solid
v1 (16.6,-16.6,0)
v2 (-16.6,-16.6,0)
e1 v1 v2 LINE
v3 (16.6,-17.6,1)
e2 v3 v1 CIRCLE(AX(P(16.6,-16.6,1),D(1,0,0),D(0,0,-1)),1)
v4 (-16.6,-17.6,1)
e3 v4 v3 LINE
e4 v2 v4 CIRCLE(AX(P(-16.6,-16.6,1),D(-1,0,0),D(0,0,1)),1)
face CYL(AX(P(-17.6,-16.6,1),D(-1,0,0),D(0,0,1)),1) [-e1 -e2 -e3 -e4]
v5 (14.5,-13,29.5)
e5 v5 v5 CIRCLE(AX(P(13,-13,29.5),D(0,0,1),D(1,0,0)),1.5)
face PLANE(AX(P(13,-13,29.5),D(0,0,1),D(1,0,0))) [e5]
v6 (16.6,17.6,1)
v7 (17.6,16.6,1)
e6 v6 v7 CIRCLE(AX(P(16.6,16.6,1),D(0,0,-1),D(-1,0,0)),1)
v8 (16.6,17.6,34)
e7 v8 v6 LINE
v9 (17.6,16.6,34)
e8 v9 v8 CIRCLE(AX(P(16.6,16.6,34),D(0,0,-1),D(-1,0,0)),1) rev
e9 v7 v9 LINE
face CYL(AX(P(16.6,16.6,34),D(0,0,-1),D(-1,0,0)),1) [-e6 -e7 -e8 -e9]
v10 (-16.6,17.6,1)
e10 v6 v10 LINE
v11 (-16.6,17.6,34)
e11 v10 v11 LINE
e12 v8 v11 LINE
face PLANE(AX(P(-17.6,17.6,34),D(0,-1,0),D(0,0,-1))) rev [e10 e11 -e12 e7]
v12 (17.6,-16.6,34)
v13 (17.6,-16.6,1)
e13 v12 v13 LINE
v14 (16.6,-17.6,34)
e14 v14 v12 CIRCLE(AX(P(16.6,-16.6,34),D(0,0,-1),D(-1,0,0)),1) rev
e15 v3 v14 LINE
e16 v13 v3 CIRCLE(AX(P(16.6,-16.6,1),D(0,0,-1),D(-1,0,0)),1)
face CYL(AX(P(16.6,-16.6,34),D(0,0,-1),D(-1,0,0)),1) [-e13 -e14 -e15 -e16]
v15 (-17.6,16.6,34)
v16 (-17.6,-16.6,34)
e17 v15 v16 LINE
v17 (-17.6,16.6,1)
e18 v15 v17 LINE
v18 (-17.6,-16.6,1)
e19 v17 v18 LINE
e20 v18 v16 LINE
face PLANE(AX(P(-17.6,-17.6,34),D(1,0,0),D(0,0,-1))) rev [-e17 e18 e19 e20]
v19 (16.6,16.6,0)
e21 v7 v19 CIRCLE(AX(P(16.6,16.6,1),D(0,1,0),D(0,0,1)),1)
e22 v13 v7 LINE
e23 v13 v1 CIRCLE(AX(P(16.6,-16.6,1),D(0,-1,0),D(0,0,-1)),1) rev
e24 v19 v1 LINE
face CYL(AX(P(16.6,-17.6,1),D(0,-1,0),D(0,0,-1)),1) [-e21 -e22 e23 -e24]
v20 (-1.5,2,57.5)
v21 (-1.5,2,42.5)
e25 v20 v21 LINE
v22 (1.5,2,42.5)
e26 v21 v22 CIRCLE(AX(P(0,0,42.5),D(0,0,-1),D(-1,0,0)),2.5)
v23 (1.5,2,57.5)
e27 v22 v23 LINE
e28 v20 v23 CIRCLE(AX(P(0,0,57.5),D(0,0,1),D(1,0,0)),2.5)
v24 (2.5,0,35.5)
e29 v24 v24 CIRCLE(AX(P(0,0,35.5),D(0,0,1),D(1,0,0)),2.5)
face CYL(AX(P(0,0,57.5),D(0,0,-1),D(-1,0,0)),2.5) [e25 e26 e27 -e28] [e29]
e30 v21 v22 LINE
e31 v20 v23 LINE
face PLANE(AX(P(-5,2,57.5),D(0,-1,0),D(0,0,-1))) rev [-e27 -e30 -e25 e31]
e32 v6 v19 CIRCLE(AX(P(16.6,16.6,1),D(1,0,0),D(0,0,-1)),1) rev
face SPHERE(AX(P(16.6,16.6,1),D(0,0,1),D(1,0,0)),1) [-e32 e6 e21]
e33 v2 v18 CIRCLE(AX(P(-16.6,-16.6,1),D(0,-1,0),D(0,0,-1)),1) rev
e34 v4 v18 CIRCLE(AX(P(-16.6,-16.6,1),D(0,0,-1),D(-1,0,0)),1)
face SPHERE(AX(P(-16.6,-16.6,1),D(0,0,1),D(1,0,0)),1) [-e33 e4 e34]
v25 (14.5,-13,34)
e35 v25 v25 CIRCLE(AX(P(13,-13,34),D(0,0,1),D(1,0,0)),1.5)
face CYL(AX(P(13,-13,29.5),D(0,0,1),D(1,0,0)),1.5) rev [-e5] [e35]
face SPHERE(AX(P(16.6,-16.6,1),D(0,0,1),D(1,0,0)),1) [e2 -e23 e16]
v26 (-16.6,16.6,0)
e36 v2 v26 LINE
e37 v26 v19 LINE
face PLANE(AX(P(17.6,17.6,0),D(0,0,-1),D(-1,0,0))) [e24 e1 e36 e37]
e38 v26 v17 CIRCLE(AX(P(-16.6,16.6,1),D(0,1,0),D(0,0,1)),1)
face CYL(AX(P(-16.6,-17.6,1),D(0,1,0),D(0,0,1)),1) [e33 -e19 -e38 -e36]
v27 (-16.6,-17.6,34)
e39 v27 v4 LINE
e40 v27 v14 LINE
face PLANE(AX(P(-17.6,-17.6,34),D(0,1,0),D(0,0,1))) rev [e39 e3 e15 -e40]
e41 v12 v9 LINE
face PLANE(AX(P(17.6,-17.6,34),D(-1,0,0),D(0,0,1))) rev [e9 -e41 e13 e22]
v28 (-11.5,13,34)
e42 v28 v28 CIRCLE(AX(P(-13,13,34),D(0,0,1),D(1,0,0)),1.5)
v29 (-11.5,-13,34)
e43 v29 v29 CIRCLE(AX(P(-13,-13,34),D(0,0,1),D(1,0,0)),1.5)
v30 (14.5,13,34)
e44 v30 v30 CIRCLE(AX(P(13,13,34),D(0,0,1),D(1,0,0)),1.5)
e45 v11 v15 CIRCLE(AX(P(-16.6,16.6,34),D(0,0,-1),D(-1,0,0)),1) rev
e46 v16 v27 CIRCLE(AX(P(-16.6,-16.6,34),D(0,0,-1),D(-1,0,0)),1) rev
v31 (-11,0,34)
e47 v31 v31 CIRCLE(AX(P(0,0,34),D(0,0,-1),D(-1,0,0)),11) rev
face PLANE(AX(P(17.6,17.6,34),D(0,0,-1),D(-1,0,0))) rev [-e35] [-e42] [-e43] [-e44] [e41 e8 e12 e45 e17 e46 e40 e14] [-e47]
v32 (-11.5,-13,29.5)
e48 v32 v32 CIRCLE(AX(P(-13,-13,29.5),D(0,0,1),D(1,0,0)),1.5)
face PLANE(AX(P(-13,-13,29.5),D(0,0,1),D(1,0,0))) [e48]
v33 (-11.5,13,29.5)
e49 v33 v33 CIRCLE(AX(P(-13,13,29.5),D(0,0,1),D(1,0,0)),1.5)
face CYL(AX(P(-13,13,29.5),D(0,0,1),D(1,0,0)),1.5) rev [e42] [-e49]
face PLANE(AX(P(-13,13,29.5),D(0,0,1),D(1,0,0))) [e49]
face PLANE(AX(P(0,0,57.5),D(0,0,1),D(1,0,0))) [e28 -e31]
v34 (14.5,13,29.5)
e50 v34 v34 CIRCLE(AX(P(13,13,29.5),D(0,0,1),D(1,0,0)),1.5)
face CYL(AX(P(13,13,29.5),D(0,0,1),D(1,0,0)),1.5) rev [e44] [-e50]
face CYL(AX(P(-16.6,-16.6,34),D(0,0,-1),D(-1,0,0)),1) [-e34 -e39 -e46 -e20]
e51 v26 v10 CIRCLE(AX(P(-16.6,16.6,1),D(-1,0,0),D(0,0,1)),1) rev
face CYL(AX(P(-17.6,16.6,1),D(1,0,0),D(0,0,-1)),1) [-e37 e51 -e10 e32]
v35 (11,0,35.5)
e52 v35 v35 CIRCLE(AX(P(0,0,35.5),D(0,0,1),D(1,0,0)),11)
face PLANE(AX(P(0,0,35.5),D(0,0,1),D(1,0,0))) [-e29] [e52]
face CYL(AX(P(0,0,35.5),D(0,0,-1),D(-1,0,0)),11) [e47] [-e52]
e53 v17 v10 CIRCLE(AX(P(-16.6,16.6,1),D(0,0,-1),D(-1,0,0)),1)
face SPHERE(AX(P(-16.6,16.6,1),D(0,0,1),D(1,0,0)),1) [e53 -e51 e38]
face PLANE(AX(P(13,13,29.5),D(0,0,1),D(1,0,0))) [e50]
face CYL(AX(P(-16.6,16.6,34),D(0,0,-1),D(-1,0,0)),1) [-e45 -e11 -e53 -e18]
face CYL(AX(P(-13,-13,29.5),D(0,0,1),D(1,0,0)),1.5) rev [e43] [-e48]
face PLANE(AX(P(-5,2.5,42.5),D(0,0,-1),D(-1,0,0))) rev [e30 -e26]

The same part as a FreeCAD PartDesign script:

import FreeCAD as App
import Part
import Sketcher

V = App.Vector


def edges_at(feature, points):
    """Names of the edges that pass closest to the given points."""
    edges = feature.Shape.Edges
    near = lambda p: min(range(len(edges)), key=lambda i: edges[i].distToShape(Part.Vertex(*p))[0])
    return sorted({f"Edge{near(p) + 1}" for p in points})


def add_polygon(sketch, points):
    """Adds a closed chain of lines whose ends are joined by coincident constraints."""
    first, n = sketch.GeometryCount, len(points)
    for a, b in zip(points, points[1:] + points[:1]):
        sketch.addGeometry(Part.LineSegment(App.Vector(*a, 0), App.Vector(*b, 0)), False)
    for i in range(n):
        sketch.addConstraint(Sketcher.Constraint("Coincident", first + i, 2, first + (i + 1) % n, 1))

doc = App.newDocument("Part")
params = doc.addObject("Spreadsheet::Sheet", "Params")
for row, (alias, value) in enumerate([
    ("sketch1_width", "35.2 mm"),
    ("pad1_length", "34 mm"),
    ("sketch2_diameter", "22 mm"),
    ("pad2_length", "1.5 mm"),
    ("sketch3_diameter", "5 mm"),
    ("pad3_length", "22 mm"),
    ("sketch4_height", "15 mm"),
    ("sketch4_width", "0.5 mm"),
    ("pocket1_length", "10 mm"),
    ("sketch5_diameter", "3 mm"),
    ("pocket2_length", "4.5 mm"),
    ("fillet_radius", "1 mm"),
], start=1):
    params.set(f"A{row}", alias)
    params.set(f"B{row}", "=" + value)
    params.setAlias(f"B{row}", alias)

body = doc.addObject("PartDesign::Body", "Body")

# Sketch on XY plane
sketch1 = body.newObject("Sketcher::SketchObject", "Sketch")
sketch1.AttachmentSupport = (doc.getObject("XY_Plane"), [""])
sketch1.MapMode = "FlatFace"
add_polygon(sketch1, [(-18, 18), (-18, -18), (18, -18), (18, 18)])  # lines 0-3
sketch1.addConstraint([
    Sketcher.Constraint("Vertical", 0),
    Sketcher.Constraint("Horizontal", 1),
    Sketcher.Constraint("Vertical", 2),
    Sketcher.Constraint("Horizontal", 3),
    Sketcher.Constraint("Symmetric", 0, 2, 2, 2, -1, 1),
    Sketcher.Constraint("Equal", 3, 0),
    Sketcher.Constraint("DistanceX", 1, 1, 1, 2, 35.2),
])
sketch1.setExpression("Constraints[10]", "Params.sketch1_width")
pad1 = body.newObject("PartDesign::Pad", "Pad")
pad1.Profile = sketch1
pad1.setExpression("Length", "Params.pad1_length")

# Sketch on XY plane
sketch2 = body.newObject("Sketcher::SketchObject", "Sketch001")
sketch2.AttachmentSupport = (doc.getObject("XY_Plane"), [""])
sketch2.MapMode = "FlatFace"
sketch2.AttachmentOffset = App.Placement(V(0, 0, 34), App.Rotation())
sketch2.addGeometry(Part.Circle(V(0, 0, 0), V(0, 0, 1), 11), False)
sketch2.addConstraint([
    Sketcher.Constraint("Coincident", 0, 3, -1, 1),
    Sketcher.Constraint("Diameter", 0, 22.0),
])
sketch2.setExpression("Constraints[1]", "Params.sketch2_diameter")
pad2 = body.newObject("PartDesign::Pad", "Pad001")
pad2.Profile = sketch2
pad2.setExpression("Length", "Params.pad2_length")

# Sketch on XY plane
sketch3 = body.newObject("Sketcher::SketchObject", "Sketch002")
sketch3.AttachmentSupport = (doc.getObject("XY_Plane"), [""])
sketch3.MapMode = "FlatFace"
sketch3.AttachmentOffset = App.Placement(V(0, 0, 35.5), App.Rotation())
sketch3.addGeometry(Part.Circle(V(0, 0, 0), V(0, 0, 1), 2.5), False)
sketch3.addConstraint([
    Sketcher.Constraint("Coincident", 0, 3, -1, 1),
    Sketcher.Constraint("Diameter", 0, 5.0),
])
sketch3.setExpression("Constraints[1]", "Params.sketch3_diameter")
pad3 = body.newObject("PartDesign::Pad", "Pad002")
pad3.Profile = sketch3
pad3.setExpression("Length", "Params.pad3_length")

# Sketch on YZ plane
sketch4 = body.newObject("Sketcher::SketchObject", "Sketch003")
sketch4.AttachmentSupport = (doc.getObject("YZ_Plane"), [""])
sketch4.MapMode = "FlatFace"
add_polygon(sketch4, [(2.5, 57.5), (2, 57.5), (2, 42.5), (2.5, 42.5)])  # lines 0-3
sketch4.addConstraint([
    Sketcher.Constraint("Horizontal", 0),
    Sketcher.Constraint("Vertical", 1),
    Sketcher.Constraint("Horizontal", 2),
    Sketcher.Constraint("Vertical", 3),
    Sketcher.Constraint("DistanceY", 1, 2, 1, 1, 15.0),
    Sketcher.Constraint("DistanceX", 0, 2, 0, 1, 0.5),
    Sketcher.Constraint("DistanceX", -1, 1, 0, 2, 2.0),
    Sketcher.Constraint("DistanceY", -1, 1, 0, 2, 57.5),
])
sketch4.setExpression("Constraints[8]", "Params.sketch4_height")
sketch4.setExpression("Constraints[9]", "Params.sketch4_width")
pocket1 = body.newObject("PartDesign::Pocket", "Pocket")
pocket1.Profile = sketch4
pocket1.setExpression("Length", "Params.pocket1_length")
pocket1.Midplane = True

# Sketch on XY plane
sketch5 = body.newObject("Sketcher::SketchObject", "Sketch004")
sketch5.AttachmentSupport = (doc.getObject("XY_Plane"), [""])
sketch5.MapMode = "FlatFace"
sketch5.AttachmentOffset = App.Placement(V(0, 0, 34), App.Rotation())
sketch5.addGeometry([
    Part.Circle(V(-13, 13, 0), V(0, 0, 1), 1.5),
    Part.Circle(V(13, 13, 0), V(0, 0, 1), 1.5),
    Part.Circle(V(13, -13, 0), V(0, 0, 1), 1.5),
    Part.Circle(V(-13, -13, 0), V(0, 0, 1), 1.5),
], False)
sketch5.addConstraint([
    Sketcher.Constraint("Equal", 0, 1),
    Sketcher.Constraint("Equal", 1, 2),
    Sketcher.Constraint("Equal", 2, 3),
    Sketcher.Constraint("Symmetric", 0, 3, 2, 3, -1, 1),
    Sketcher.Constraint("Symmetric", 1, 3, 3, 3, -1, 1),
    Sketcher.Constraint("Symmetric", 0, 3, 1, 3, -2),
    Sketcher.Constraint("Diameter", 0, 3.0),
    Sketcher.Constraint("DistanceX", 0, 3, -1, 1, 13.0),
    Sketcher.Constraint("DistanceY", -1, 1, 0, 3, 13.0),
])
sketch5.setExpression("Constraints[6]", "Params.sketch5_diameter")
pocket2 = body.newObject("PartDesign::Pocket", "Pocket001")
pocket2.Profile = sketch5
pocket2.setExpression("Length", "Params.pocket2_length")
doc.recompute()

fillet = body.newObject("PartDesign::Fillet", "Fillet")
fillet.Base = (pocket2, edges_at(pocket2, [
    (0, -17.6, 0),
    (-17.6, 0, 0),
    (0, 17.6, 0),
    (17.6, 0, 0),
    (17.6, -17.6, 17),
    (-17.6, -17.6, 17),
    (-17.6, 17.6, 17),
    (17.6, 17.6, 17),
]))
fillet.setExpression("Radius", "Params.fillet_radius")

doc.recompute()
